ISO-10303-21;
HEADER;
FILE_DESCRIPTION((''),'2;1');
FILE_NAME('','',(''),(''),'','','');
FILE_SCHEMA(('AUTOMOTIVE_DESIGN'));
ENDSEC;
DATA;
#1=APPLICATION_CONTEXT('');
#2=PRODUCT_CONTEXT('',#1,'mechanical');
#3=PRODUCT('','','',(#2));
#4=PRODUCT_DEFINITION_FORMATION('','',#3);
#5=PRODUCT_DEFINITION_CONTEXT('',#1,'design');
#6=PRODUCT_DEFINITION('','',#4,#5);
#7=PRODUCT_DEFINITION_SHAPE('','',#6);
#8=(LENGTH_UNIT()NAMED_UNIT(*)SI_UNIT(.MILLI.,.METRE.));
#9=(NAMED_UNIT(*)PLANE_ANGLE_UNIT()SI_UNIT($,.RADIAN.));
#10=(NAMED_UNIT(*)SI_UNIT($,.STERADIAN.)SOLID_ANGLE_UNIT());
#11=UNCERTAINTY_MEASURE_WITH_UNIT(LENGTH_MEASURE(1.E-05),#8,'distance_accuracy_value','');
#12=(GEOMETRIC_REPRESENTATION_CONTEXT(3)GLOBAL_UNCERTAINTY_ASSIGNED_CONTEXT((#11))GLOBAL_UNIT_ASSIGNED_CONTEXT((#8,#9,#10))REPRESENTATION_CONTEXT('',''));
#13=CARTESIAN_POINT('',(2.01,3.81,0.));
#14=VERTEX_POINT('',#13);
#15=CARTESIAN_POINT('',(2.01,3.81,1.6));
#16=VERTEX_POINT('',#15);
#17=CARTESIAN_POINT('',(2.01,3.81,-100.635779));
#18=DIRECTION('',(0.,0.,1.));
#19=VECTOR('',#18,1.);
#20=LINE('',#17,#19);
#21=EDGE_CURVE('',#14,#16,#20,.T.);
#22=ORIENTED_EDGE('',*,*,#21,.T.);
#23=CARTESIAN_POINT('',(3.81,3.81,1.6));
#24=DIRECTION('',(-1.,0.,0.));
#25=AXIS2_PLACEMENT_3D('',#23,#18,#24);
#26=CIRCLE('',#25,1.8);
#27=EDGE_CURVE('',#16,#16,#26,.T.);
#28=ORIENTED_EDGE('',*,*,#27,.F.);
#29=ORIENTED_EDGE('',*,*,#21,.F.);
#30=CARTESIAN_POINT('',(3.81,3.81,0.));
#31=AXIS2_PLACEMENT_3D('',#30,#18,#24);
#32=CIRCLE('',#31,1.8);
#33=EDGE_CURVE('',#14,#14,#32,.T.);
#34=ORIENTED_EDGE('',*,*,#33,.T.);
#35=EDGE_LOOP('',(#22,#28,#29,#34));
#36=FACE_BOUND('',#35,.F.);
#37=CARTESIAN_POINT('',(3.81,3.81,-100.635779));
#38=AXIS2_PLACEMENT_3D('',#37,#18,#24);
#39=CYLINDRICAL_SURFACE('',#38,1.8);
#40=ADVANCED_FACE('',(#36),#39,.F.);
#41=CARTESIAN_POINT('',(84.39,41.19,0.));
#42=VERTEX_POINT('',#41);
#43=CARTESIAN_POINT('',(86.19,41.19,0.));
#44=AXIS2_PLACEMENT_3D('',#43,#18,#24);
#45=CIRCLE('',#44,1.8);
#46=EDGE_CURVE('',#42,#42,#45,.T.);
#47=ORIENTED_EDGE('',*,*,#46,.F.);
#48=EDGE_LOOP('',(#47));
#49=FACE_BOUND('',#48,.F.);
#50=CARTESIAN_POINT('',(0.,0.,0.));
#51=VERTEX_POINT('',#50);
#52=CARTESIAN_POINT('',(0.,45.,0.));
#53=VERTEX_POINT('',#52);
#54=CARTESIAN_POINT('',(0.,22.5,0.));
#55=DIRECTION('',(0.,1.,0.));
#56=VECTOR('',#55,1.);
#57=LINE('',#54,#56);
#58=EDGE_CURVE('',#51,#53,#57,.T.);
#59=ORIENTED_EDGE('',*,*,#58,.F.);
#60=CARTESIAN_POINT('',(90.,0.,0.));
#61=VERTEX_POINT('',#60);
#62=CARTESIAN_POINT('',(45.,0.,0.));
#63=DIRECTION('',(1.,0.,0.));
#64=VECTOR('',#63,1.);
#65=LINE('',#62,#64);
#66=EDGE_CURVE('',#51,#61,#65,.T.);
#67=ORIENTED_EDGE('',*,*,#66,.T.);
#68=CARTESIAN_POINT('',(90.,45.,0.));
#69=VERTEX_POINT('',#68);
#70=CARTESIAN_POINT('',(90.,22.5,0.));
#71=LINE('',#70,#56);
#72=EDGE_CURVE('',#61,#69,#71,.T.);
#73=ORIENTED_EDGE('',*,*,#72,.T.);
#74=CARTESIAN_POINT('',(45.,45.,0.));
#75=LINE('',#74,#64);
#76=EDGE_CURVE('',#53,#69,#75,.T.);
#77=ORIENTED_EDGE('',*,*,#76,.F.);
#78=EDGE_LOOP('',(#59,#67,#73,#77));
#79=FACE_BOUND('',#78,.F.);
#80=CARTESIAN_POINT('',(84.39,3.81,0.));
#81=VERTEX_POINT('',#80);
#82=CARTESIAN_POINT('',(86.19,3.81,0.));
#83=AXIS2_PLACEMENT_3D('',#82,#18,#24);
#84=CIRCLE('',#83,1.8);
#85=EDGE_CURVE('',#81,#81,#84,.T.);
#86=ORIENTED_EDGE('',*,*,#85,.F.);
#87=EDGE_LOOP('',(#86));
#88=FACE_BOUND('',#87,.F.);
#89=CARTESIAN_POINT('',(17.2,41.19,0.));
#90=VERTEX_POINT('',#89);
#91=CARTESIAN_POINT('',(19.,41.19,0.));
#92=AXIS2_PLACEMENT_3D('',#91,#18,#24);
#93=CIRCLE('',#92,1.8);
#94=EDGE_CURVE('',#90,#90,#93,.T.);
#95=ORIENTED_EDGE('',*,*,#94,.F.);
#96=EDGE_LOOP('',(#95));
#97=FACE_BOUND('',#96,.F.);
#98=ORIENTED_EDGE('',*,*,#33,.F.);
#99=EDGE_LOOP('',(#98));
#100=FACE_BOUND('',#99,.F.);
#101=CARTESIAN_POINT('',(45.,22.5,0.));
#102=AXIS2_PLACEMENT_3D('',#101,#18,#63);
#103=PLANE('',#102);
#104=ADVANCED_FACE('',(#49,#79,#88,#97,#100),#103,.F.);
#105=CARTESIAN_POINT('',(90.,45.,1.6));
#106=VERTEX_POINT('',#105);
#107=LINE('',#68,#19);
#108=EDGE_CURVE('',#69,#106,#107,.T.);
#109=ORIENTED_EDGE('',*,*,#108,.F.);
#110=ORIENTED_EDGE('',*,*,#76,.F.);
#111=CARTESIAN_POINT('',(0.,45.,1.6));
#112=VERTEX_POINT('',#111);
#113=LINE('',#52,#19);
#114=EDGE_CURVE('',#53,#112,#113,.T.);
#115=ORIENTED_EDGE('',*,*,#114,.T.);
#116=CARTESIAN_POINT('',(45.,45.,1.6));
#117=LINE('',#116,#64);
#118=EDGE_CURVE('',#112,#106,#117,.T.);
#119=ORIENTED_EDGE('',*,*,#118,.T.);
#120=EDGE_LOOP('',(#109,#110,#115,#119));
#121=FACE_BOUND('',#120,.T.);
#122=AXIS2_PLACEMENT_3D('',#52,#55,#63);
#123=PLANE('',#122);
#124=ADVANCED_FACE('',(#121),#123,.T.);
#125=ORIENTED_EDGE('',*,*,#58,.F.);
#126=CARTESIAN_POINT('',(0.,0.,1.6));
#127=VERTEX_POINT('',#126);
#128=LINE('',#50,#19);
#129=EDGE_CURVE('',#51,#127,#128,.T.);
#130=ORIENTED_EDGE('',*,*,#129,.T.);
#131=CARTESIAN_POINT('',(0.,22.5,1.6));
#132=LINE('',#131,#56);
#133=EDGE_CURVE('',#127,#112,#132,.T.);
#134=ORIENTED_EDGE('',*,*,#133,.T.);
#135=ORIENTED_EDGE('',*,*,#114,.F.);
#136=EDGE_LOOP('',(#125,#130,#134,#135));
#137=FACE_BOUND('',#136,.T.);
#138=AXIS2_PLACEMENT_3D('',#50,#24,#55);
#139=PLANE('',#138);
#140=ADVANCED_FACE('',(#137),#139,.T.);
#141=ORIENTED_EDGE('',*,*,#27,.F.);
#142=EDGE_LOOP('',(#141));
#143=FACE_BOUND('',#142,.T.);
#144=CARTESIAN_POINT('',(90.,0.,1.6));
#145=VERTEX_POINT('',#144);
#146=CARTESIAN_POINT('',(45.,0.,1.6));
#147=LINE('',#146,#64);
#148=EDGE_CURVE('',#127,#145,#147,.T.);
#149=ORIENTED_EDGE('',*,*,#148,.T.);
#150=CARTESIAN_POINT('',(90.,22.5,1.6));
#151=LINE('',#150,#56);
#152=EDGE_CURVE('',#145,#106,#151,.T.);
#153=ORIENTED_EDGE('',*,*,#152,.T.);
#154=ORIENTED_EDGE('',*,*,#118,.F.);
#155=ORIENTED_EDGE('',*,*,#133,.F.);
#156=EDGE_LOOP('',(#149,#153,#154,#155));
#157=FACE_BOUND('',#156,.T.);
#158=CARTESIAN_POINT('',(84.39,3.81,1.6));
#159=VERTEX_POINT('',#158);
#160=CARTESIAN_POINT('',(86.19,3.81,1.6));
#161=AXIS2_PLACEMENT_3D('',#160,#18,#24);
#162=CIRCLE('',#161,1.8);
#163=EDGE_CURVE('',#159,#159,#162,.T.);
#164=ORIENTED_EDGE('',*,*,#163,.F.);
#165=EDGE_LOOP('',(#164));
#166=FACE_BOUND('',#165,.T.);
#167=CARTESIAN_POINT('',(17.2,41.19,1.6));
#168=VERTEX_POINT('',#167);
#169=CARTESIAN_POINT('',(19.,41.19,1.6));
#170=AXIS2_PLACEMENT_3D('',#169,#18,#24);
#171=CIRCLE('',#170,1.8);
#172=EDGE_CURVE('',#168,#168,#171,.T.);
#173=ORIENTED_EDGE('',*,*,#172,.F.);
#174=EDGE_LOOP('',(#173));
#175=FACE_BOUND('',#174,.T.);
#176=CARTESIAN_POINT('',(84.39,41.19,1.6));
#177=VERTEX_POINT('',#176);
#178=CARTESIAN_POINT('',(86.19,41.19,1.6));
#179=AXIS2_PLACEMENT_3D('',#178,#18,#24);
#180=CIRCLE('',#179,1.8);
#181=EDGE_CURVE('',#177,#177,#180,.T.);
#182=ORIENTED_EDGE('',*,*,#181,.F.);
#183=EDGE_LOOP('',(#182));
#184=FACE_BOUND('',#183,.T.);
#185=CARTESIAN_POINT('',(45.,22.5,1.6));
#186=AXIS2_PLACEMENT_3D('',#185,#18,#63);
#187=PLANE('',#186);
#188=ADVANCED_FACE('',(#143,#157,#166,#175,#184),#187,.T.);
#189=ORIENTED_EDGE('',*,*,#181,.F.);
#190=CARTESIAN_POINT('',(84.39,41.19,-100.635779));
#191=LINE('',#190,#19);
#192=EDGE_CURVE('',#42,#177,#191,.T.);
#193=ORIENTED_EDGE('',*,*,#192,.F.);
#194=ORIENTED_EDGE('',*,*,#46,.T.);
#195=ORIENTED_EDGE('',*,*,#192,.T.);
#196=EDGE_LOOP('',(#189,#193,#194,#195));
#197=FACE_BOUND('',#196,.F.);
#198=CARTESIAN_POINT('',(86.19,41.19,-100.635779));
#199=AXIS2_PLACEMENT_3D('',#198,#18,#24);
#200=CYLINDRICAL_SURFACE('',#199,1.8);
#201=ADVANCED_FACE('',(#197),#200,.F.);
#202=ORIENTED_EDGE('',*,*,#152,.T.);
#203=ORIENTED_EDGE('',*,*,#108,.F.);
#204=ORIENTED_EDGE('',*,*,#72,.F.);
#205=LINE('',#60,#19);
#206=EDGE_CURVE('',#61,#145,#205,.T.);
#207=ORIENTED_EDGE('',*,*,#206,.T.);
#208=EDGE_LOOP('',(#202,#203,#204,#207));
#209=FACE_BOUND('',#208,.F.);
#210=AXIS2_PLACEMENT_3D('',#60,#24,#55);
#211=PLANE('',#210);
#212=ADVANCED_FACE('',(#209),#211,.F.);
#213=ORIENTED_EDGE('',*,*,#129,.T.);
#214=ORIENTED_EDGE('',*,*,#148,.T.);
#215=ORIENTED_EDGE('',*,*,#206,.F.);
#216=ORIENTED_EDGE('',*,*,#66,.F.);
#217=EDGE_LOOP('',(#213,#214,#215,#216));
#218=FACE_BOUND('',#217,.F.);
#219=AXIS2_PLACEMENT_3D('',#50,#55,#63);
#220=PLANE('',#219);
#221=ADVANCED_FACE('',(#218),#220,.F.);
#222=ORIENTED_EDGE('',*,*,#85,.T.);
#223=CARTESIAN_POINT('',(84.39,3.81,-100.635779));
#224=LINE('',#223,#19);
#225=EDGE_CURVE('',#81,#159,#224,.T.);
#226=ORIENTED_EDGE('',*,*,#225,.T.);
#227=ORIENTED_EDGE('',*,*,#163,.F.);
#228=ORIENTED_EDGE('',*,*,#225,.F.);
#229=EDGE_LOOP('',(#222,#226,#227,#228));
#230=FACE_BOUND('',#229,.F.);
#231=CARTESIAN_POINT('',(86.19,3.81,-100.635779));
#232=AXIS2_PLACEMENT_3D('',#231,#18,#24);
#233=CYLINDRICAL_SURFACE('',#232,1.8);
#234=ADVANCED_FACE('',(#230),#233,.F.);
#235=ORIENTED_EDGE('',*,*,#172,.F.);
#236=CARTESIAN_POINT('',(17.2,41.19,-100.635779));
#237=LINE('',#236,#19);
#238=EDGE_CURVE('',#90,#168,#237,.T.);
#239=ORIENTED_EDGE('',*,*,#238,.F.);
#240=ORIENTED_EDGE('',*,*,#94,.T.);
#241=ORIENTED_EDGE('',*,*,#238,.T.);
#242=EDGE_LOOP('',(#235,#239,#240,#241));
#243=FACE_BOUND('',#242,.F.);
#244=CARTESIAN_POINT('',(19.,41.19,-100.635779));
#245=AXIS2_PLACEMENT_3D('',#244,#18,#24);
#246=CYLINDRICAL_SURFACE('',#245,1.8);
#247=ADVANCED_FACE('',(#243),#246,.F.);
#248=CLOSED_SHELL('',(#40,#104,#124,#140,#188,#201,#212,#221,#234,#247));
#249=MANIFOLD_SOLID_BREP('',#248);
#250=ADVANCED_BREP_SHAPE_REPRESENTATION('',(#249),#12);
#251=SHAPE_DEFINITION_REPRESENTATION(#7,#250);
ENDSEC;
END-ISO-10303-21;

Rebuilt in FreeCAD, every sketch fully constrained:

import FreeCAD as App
import Part
import Sketcher

doc = App.newDocument("Part")
body = doc.addObject("PartDesign::Body", "Body")

sketch1 = body.newObject("Sketcher::SketchObject", "Sketch")
sketch1.AttachmentSupport = (doc.getObject("XY_Plane"), [""])
sketch1.MapMode = "FlatFace"
sketch1.addGeometry(Part.LineSegment(App.Vector(0, 45, 0), App.Vector(0, 0, 0)), False)
sketch1.addGeometry(Part.LineSegment(App.Vector(0, 0, 0), App.Vector(90, 0, 0)), False)
sketch1.addGeometry(Part.LineSegment(App.Vector(90, 0, 0), App.Vector(90, 45, 0)), False)
sketch1.addGeometry(Part.LineSegment(App.Vector(90, 45, 0), App.Vector(0, 45, 0)), False)
sketch1.addConstraint(Sketcher.Constraint("Coincident", 0, 2, 1, 1))
sketch1.addConstraint(Sketcher.Constraint("Coincident", 1, 2, 2, 1))
sketch1.addConstraint(Sketcher.Constraint("Coincident", 2, 2, 3, 1))
sketch1.addConstraint(Sketcher.Constraint("Coincident", 3, 2, 0, 1))
sketch1.addConstraint(Sketcher.Constraint("Vertical", 0))
sketch1.addConstraint(Sketcher.Constraint("Horizontal", 1))
sketch1.addConstraint(Sketcher.Constraint("Vertical", 2))
sketch1.addConstraint(Sketcher.Constraint("Horizontal", 3))
sketch1.addConstraint(Sketcher.Constraint("Coincident", 0, 2, -1, 1))
sketch1.addConstraint(Sketcher.Constraint("DistanceX", 1, 1, 1, 2, 90.0))
sketch1.addConstraint(Sketcher.Constraint("DistanceY", 0, 2, 0, 1, 45.0))
pad1 = body.newObject("PartDesign::Pad", "Pad")
pad1.Profile = sketch1
pad1.Length = 1.6

sketch2 = body.newObject("Sketcher::SketchObject", "Sketch001")
sketch2.AttachmentSupport = (doc.getObject("XY_Plane"), [""])
sketch2.MapMode = "FlatFace"
sketch2.addGeometry(Part.Circle(App.Vector(19, 41.19, 0), App.Vector(0, 0, 1), 1.8), False)
sketch2.addGeometry(Part.Circle(App.Vector(3.81, 3.81, 0), App.Vector(0, 0, 1), 1.8), False)
sketch2.addGeometry(Part.Circle(App.Vector(86.19, 41.19, 0), App.Vector(0, 0, 1), 1.8), False)
sketch2.addGeometry(Part.Circle(App.Vector(86.19, 3.81, 0), App.Vector(0, 0, 1), 1.8), False)
sketch2.addConstraint(Sketcher.Constraint("Equal", 0, 1))
sketch2.addConstraint(Sketcher.Constraint("Equal", 1, 2))
sketch2.addConstraint(Sketcher.Constraint("Equal", 2, 3))
sketch2.addConstraint(Sketcher.Constraint("Horizontal", 0, 3, 2, 3))
sketch2.addConstraint(Sketcher.Constraint("Horizontal", 1, 3, 3, 3))
sketch2.addConstraint(Sketcher.Constraint("Vertical", 2, 3, 3, 3))
sketch2.addConstraint(Sketcher.Constraint("Diameter", 0, 3.6))
sketch2.addConstraint(Sketcher.Constraint("DistanceX", -1, 1, 0, 3, 19.0))
sketch2.addConstraint(Sketcher.Constraint("DistanceY", -1, 1, 0, 3, 41.19))
sketch2.addConstraint(Sketcher.Constraint("DistanceX", -1, 1, 1, 3, 3.81))
sketch2.addConstraint(Sketcher.Constraint("DistanceY", -1, 1, 1, 3, 3.81))
sketch2.addConstraint(Sketcher.Constraint("DistanceX", -1, 1, 2, 3, 86.19))
doc.recompute()
hole = body.newObject("PartDesign::Hole", "Hole")
hole.Profile = sketch2
hole.ThreadType = "None"
hole.Diameter = 3.6
hole.DepthType = "ThroughAll"
hole.Reversed = True

doc.recompute()
